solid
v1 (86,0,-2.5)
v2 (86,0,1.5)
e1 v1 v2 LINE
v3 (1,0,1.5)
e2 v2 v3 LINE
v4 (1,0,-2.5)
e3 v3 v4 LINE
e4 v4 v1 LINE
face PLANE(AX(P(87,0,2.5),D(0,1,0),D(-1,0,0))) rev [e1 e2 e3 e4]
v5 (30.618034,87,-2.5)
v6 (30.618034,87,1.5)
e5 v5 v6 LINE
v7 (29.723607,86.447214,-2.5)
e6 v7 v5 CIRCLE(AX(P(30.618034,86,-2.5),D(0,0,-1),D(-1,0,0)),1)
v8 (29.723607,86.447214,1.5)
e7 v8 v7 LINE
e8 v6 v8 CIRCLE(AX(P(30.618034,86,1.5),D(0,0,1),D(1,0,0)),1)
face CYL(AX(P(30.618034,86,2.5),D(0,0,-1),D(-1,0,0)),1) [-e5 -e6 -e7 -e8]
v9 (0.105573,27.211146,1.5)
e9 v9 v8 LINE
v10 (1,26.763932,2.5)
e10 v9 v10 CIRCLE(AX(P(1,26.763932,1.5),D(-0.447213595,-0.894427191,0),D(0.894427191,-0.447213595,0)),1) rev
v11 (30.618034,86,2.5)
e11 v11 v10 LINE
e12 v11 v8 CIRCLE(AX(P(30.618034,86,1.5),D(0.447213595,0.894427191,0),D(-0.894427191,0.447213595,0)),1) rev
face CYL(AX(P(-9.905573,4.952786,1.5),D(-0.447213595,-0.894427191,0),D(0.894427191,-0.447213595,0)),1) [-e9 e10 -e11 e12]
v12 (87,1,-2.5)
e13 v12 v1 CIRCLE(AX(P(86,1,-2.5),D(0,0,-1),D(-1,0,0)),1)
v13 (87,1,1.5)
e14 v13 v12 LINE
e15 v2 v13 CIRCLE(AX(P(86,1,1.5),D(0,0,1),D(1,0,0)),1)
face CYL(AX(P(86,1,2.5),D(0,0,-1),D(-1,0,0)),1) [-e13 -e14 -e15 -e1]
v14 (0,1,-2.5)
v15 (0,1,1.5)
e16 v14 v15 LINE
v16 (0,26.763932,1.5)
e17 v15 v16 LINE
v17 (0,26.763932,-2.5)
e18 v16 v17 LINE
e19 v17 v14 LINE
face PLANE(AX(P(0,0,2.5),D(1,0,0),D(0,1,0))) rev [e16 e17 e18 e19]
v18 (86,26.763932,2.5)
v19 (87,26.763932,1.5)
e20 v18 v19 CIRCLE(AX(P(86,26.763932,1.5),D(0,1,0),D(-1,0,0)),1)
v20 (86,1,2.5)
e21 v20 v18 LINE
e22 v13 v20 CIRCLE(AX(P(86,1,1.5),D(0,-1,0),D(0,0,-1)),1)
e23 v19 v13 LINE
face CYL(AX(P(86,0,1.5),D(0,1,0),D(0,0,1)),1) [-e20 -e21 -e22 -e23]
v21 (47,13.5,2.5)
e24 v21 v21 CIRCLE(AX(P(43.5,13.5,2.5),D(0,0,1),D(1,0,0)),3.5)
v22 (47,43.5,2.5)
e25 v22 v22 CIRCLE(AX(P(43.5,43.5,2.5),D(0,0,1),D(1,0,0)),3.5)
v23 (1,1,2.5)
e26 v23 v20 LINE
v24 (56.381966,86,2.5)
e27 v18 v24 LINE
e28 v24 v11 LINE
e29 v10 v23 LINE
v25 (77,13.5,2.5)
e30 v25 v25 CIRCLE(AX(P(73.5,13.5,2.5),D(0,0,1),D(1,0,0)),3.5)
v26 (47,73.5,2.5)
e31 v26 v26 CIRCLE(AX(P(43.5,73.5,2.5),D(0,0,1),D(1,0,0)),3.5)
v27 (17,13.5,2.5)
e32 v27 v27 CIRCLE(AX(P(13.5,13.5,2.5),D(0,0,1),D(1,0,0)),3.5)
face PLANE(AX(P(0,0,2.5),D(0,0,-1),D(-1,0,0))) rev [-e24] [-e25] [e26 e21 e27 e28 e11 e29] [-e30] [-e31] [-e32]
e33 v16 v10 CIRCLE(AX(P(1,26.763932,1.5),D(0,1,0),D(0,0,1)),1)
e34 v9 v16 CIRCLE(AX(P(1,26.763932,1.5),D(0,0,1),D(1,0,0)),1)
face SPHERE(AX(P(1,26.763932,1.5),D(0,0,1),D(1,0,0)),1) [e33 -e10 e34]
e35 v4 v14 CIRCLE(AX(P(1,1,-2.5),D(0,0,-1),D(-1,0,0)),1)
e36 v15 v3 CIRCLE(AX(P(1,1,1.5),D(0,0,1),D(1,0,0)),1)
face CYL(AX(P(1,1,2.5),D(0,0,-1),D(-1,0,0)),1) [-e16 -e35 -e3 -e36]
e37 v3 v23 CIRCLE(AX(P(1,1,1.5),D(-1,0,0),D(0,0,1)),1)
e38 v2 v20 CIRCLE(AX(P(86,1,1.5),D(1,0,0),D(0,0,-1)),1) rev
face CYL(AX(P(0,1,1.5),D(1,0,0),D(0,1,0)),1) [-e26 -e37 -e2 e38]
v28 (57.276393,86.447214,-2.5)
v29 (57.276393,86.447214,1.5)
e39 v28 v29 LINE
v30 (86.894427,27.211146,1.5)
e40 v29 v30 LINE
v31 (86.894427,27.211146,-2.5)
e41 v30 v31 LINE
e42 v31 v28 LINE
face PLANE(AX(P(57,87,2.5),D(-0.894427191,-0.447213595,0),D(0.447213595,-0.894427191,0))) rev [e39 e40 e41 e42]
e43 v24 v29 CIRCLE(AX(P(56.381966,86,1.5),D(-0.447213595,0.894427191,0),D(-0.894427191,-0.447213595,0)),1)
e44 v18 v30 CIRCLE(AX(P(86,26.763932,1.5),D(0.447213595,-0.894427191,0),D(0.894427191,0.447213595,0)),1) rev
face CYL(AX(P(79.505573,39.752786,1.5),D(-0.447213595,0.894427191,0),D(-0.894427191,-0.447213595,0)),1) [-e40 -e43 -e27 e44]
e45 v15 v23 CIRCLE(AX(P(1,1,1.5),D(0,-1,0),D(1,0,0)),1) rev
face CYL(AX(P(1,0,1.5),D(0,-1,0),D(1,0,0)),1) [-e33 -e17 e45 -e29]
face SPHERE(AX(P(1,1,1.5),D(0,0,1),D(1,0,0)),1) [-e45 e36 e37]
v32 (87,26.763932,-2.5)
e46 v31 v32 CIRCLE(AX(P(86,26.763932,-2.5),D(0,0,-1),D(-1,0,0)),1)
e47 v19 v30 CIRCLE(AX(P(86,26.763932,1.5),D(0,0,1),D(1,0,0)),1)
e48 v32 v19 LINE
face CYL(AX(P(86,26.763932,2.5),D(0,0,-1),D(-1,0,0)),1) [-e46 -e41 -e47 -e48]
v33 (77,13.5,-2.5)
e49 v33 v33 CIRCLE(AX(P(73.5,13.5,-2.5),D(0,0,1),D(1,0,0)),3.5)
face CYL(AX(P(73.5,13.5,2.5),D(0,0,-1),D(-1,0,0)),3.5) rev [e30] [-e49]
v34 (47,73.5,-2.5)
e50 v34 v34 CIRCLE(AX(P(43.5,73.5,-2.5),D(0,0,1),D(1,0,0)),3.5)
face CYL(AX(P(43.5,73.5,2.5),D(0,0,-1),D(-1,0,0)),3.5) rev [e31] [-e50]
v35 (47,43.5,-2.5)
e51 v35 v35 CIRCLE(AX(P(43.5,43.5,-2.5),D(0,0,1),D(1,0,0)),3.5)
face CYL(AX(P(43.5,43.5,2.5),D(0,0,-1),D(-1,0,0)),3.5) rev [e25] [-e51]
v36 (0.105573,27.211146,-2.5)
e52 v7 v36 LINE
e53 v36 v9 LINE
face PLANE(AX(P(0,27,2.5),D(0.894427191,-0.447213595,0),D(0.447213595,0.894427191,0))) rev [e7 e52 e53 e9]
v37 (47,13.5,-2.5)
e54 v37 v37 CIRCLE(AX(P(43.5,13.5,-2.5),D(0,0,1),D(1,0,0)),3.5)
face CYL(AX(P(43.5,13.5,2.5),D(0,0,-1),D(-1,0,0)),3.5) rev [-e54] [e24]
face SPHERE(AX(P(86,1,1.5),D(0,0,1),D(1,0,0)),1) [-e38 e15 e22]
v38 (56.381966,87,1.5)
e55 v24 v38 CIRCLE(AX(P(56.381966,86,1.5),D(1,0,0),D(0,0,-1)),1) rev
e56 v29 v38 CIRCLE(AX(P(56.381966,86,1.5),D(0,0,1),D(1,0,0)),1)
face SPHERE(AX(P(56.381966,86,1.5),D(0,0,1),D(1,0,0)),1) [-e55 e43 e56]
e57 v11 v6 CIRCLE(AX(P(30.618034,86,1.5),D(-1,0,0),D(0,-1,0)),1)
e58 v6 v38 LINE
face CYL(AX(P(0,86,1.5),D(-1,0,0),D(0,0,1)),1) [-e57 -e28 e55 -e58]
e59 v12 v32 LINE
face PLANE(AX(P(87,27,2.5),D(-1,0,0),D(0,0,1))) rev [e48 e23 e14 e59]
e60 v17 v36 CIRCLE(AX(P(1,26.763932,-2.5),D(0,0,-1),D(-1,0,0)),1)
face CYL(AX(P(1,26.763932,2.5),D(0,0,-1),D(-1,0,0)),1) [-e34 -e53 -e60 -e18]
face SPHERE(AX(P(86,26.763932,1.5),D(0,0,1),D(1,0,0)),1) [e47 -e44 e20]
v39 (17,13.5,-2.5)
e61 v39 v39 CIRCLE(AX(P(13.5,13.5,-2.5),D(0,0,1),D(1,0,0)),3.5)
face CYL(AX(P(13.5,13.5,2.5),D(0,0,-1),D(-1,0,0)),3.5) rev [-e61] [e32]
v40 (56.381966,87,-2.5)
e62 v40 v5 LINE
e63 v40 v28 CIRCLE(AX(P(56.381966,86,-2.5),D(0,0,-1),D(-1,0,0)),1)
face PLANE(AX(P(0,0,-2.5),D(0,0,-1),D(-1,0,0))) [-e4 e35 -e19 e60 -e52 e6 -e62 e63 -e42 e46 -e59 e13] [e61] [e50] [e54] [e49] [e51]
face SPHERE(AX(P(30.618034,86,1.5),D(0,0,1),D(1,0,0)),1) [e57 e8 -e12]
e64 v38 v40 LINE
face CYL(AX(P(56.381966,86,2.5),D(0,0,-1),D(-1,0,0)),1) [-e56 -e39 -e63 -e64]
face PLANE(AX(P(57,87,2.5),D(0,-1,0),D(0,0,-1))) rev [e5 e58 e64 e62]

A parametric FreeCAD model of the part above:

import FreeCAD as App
import Part
import Sketcher
Q = App.Units.Quantity


def edges_at(feature, points):
    """Names of the edges that pass closest to the given points."""
    edges = feature.Shape.Edges
    near = lambda p: min(range(len(edges)), key=lambda i: edges[i].distToShape(Part.Vertex(*p))[0])
    return sorted({f"Edge{near(p) + 1}" for p in points})


def add_polygon(sketch, points):
    """Adds a closed chain of lines whose ends are joined by coincident constraints."""
    first, n = sketch.GeometryCount, len(points)
    for a, b in zip(points, points[1:] + points[:1]):
        sketch.addGeometry(Part.LineSegment(App.Vector(*a, 0), App.Vector(*b, 0)), False)
    for i in range(n):
        sketch.addConstraint(Sketcher.Constraint("Coincident", first + i, 2, first + (i + 1) % n, 1))

doc = App.newDocument("Part")
body = doc.addObject("PartDesign::Body", "Body")

# Sketch on XY plane
sketch1 = body.newObject("Sketcher::SketchObject", "Sketch")
sketch1.AttachmentSupport = (doc.getObject("XY_Plane"), [""])
sketch1.MapMode = "FlatFace"
add_polygon(sketch1, [(0, 27), (0, 0), (87, 0), (87, 27), (57, 87), (30, 87)])  # lines 0-5
sketch1.addGeometry(Part.Circle(App.Vector(73.5, 13.5, 0), App.Vector(0, 0, 1), 3.5), False)  # 6
sketch1.addGeometry(Part.Circle(App.Vector(43.5, 13.5, 0), App.Vector(0, 0, 1), 3.5), False)  # 7
sketch1.addGeometry(Part.Circle(App.Vector(13.5, 13.5, 0), App.Vector(0, 0, 1), 3.5), False)  # 8
sketch1.addGeometry(Part.Circle(App.Vector(43.5, 43.5, 0), App.Vector(0, 0, 1), 3.5), False)  # 9
sketch1.addGeometry(Part.Circle(App.Vector(43.5, 73.5, 0), App.Vector(0, 0, 1), 3.5), False)  # 10
sketch1.addConstraint([
    Sketcher.Constraint("Vertical", 0),
    Sketcher.Constraint("Horizontal", 1),
    Sketcher.Constraint("Vertical", 2),
    Sketcher.Constraint("Horizontal", 4),
    Sketcher.Constraint("Coincident", 0, 2, -1, 1),
    Sketcher.Constraint("Equal", 6, 7),
    Sketcher.Constraint("Equal", 7, 8),
    Sketcher.Constraint("Equal", 8, 9),
    Sketcher.Constraint("Equal", 9, 10),
    Sketcher.Constraint("Horizontal", 6, 3, 7, 3),
    Sketcher.Constraint("Horizontal", 7, 3, 8, 3),
    Sketcher.Constraint("Horizontal", 2, 2, 5, 2),
    Sketcher.Constraint("Vertical", 7, 3, 9, 3),
    Sketcher.Constraint("Vertical", 9, 3, 10, 3),
    Sketcher.Constraint("Equal", 4, 0),
    Sketcher.Constraint("Equal", 3, 5),
    Sketcher.Constraint("Diameter", 6, Q("7 mm")),
    Sketcher.Constraint("DistanceX", 1, 1, 1, 2, Q("87 mm")),
    Sketcher.Constraint("DistanceX", 4, 2, 4, 1, Q("27 mm")),
    Sketcher.Constraint("DistanceY", -1, 1, 3, 2, Q("87 mm")),
    Sketcher.Constraint("DistanceX", 7, 3, 6, 3, Q("30 mm")),
    Sketcher.Constraint("DistanceX", 8, 3, 7, 3, Q("30 mm")),
    Sketcher.Constraint("DistanceY", 7, 3, 9, 3, Q("30 mm")),
    Sketcher.Constraint("DistanceY", 9, 3, 10, 3, Q("30 mm")),
    Sketcher.Constraint("DistanceX", -1, 1, 6, 3, Q("73.5 mm")),
    Sketcher.Constraint("DistanceY", -1, 1, 6, 3, Q("13.5 mm")),
])
pad1 = body.newObject("PartDesign::Pad", "Pad")
pad1.Profile = sketch1
pad1.Length = 5
pad1.Midplane = True
doc.recompute()

fillet = body.newObject("PartDesign::Fillet", "Fillet")
fillet.Base = (pad1, edges_at(pad1, [
    (72, 57, 2.5),
    (0, 0, 0),
    (0, 27, 0),
    (30, 87, 0),
    (57, 87, 0),
    (87, 27, 0),
    (87, 0, 0),
    (43.5, 87, 2.5),
    (15, 57, 2.5),
    (0, 13.5, 2.5),
    (43.5, 0, 2.5),
    (87, 13.5, 2.5),
]))
fillet.Radius = 1

doc.recompute()
